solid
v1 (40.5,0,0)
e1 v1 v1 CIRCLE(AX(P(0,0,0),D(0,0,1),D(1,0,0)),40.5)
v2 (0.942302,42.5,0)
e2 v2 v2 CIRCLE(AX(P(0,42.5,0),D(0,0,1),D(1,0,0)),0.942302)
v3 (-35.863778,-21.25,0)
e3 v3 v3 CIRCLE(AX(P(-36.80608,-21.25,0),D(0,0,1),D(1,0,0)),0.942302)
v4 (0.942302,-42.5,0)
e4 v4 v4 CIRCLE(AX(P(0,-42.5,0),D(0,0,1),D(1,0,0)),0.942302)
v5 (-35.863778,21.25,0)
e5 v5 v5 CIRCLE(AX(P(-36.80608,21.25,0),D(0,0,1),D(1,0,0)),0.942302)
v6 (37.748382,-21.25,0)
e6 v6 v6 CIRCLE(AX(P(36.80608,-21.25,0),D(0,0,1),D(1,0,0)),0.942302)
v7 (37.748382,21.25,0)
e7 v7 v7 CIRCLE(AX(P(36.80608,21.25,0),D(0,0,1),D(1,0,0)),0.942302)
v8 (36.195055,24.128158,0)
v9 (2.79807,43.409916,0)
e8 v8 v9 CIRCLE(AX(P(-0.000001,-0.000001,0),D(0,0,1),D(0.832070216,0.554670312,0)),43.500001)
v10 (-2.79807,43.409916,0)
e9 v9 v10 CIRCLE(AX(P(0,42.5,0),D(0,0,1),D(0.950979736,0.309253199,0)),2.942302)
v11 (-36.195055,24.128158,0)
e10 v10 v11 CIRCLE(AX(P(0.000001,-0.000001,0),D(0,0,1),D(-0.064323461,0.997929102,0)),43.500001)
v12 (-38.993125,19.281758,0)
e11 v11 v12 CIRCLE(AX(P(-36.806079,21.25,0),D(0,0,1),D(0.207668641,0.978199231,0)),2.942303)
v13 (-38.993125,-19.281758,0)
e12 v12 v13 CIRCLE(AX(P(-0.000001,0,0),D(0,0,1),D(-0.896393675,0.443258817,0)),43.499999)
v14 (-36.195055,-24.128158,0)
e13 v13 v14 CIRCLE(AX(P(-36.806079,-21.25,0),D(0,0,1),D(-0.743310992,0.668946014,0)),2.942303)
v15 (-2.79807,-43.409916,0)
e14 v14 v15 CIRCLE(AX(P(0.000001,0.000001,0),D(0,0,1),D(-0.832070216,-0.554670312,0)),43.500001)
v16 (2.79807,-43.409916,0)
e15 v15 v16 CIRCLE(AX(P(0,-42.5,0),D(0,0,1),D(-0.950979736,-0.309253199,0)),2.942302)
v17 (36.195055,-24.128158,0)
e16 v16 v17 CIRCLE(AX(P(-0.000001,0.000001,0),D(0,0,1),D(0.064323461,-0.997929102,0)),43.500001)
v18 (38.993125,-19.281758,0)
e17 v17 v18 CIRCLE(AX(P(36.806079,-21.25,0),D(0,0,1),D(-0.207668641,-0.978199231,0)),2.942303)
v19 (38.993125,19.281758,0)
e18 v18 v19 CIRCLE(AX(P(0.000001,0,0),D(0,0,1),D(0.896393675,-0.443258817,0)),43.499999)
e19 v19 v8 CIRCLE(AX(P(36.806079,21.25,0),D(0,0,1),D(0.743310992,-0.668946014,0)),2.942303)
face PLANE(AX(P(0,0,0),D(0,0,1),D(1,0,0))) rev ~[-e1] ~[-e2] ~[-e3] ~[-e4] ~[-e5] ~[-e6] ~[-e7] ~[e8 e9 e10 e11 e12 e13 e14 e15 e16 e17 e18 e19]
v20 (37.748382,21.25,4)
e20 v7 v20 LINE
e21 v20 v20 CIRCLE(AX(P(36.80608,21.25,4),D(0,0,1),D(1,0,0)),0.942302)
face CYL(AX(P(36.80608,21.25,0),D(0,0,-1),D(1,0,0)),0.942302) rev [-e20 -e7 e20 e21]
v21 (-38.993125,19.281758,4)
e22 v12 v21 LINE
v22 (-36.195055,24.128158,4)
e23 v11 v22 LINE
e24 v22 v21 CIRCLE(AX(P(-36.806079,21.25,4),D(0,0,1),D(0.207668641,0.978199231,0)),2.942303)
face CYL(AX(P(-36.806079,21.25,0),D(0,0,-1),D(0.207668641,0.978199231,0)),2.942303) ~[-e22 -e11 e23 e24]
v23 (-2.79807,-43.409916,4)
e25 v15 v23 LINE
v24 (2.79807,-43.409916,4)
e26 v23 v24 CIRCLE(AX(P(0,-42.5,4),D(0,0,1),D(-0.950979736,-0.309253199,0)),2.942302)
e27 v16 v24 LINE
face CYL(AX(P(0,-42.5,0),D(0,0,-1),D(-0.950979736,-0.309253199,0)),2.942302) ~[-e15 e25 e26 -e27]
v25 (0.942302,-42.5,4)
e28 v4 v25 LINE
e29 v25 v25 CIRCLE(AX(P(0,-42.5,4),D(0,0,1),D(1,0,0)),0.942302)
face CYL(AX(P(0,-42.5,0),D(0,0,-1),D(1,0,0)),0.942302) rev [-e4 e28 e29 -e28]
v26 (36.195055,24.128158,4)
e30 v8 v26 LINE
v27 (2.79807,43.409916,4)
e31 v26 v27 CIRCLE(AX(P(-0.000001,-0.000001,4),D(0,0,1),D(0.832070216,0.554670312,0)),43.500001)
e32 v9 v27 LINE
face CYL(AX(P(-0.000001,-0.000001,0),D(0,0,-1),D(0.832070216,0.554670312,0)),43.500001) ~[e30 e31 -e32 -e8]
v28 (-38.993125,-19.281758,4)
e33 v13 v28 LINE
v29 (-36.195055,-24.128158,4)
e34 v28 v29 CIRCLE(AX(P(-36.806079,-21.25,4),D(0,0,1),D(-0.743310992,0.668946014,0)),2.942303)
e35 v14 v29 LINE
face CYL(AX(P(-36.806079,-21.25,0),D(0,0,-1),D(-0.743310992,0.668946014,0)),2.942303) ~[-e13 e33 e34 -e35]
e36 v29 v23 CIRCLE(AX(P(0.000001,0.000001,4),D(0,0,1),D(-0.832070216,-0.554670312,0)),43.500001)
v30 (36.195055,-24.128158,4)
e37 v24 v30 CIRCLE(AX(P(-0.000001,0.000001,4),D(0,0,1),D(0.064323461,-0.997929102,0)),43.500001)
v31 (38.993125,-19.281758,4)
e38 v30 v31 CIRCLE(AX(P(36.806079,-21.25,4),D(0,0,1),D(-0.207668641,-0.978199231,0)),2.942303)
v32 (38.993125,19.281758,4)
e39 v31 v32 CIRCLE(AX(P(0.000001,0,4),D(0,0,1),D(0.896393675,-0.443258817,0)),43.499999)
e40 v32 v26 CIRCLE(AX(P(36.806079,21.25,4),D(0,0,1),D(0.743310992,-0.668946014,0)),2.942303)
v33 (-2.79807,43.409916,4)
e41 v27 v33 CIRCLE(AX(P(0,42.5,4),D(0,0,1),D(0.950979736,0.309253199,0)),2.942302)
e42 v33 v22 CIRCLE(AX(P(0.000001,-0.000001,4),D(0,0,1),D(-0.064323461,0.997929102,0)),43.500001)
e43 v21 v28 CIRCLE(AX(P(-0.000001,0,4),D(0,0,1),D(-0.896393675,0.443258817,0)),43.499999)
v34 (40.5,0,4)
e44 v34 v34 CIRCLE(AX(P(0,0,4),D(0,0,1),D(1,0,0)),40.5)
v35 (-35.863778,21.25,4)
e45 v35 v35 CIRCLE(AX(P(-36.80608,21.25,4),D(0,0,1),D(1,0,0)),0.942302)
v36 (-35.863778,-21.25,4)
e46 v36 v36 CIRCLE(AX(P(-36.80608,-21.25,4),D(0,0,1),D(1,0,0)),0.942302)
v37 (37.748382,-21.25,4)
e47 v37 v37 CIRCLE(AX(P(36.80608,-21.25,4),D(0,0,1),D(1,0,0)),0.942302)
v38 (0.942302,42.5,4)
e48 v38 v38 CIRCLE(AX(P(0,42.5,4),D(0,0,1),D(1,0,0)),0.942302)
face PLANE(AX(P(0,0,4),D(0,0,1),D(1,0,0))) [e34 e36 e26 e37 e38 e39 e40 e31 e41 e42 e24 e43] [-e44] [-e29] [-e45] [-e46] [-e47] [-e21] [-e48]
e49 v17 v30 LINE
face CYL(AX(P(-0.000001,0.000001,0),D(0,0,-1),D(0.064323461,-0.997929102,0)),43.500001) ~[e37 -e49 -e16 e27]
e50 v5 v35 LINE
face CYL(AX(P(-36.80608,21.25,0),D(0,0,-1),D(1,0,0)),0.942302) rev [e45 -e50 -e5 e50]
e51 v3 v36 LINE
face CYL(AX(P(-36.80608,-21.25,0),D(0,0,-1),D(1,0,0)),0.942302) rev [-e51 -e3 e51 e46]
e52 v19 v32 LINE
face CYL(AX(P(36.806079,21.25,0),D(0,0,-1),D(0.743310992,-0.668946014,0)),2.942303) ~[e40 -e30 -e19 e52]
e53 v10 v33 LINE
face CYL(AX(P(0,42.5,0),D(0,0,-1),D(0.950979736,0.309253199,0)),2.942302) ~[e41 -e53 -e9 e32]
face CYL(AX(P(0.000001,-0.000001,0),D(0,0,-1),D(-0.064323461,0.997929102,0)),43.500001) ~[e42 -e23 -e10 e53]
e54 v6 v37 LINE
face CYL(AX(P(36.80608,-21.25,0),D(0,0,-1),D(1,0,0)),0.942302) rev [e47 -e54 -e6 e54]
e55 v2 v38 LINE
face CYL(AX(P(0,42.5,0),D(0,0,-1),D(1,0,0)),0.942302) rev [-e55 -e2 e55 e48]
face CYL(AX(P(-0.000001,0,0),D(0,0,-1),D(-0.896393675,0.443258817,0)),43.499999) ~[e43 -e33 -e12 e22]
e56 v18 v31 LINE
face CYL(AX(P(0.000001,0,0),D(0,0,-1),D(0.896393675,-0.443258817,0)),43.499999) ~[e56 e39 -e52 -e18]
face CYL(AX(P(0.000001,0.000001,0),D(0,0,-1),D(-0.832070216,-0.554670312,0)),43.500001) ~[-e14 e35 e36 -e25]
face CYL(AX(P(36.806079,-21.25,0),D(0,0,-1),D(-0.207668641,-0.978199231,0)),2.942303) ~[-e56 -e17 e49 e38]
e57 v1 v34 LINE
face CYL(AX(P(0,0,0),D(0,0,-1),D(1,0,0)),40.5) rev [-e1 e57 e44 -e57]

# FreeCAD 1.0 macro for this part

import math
import FreeCAD as App
import Part
import Sketcher
from FreeCAD import Vector

doc = App.newDocument("Part")
params = doc.addObject("Spreadsheet::Sheet", "Params")
for row, (alias, value) in enumerate([
    ("sketch1_diameter", "81 mm"),
    ("sketch1_radius", "43.500001 mm"),
    ("sketch1_radius2", "43.499999 mm"),
    ("pad1_length", "4 mm"),
], start=1):
    params.set(f"A{row}", alias)
    params.set(f"B{row}", "=" + value)
    params.setAlias(f"B{row}", alias)

body = doc.addObject("PartDesign::Body", "Body")

sketch1 = doc.addObject("Sketcher::SketchObject", "Sketch")
body.addObject(sketch1)
sketch1.AttachmentSupport = (doc.XY_Plane, [""])
sketch1.MapMode = "FlatFace"
sketch1.addGeometry([
    Part.ArcOfCircle(Part.Circle(Vector(0, 42.5, 0), Vector(0, 0, 1), 2.9), math.radians(18), math.radians(162)),
    Part.ArcOfCircle(Part.Circle(Vector(0, 0, 0), Vector(0, 0, 1), 43.5), math.radians(94), math.radians(146)),
    Part.ArcOfCircle(Part.Circle(Vector(-36.8, 21.2, 0), Vector(0, 0, 1), 2.9), math.radians(78), math.radians(222)),
    Part.ArcOfCircle(Part.Circle(Vector(0, 0, 0), Vector(0, 0, 1), 43.5), math.radians(154), math.radians(206)),
    Part.ArcOfCircle(Part.Circle(Vector(-36.8, -21.2, 0), Vector(0, 0, 1), 2.9), math.radians(138), math.radians(282)),
    Part.ArcOfCircle(Part.Circle(Vector(0, 0, 0), Vector(0, 0, 1), 43.5), math.radians(-146), math.radians(-94)),
    Part.ArcOfCircle(Part.Circle(Vector(0, -42.5, 0), Vector(0, 0, 1), 2.9), math.radians(-162), math.radians(-18)),
    Part.ArcOfCircle(Part.Circle(Vector(0, 0, 0), Vector(0, 0, 1), 43.5), math.radians(-86), math.radians(-34)),
    Part.ArcOfCircle(Part.Circle(Vector(36.8, -21.2, 0), Vector(0, 0, 1), 2.9), math.radians(-102), math.radians(42)),
    Part.ArcOfCircle(Part.Circle(Vector(0, 0, 0), Vector(0, 0, 1), 43.5), math.radians(-26), math.radians(26)),
    Part.ArcOfCircle(Part.Circle(Vector(36.8, 21.2, 0), Vector(0, 0, 1), 2.9), math.radians(-42), math.radians(102)),
    Part.ArcOfCircle(Part.Circle(Vector(0, 0, 0), Vector(0, 0, 1), 43.5), math.radians(34), math.radians(86)),
    Part.Circle(Vector(-36.8, -21.2, 0), Vector(0, 0, 1), 0.9),
    Part.Circle(Vector(0, -42.5, 0), Vector(0, 0, 1), 0.9),
    Part.Circle(Vector(36.8, -21.2, 0), Vector(0, 0, 1), 0.9),
    Part.Circle(Vector(-36.8, 21.2, 0), Vector(0, 0, 1), 0.9),
    Part.Circle(Vector(0, 0, 0), Vector(0, 0, 1), 40.5),
    Part.Circle(Vector(36.8, 21.2, 0), Vector(0, 0, 1), 0.9),
    Part.Circle(Vector(0, 42.5, 0), Vector(0, 0, 1), 0.9),
], False)
sketch1.addConstraint([
    Sketcher.Constraint("Coincident", 0, 2, 1, 1),
    Sketcher.Constraint("Coincident", 1, 2, 2, 1),
    Sketcher.Constraint("Coincident", 2, 2, 3, 1),
    Sketcher.Constraint("Coincident", 3, 2, 4, 1),
    Sketcher.Constraint("Coincident", 4, 2, 5, 1),
    Sketcher.Constraint("Coincident", 5, 2, 6, 1),
    Sketcher.Constraint("Coincident", 6, 2, 7, 1),
    Sketcher.Constraint("Coincident", 7, 2, 8, 1),
    Sketcher.Constraint("Coincident", 8, 2, 9, 1),
    Sketcher.Constraint("Coincident", 9, 2, 10, 1),
    Sketcher.Constraint("Coincident", 10, 2, 11, 1),
    Sketcher.Constraint("Coincident", 11, 2, 0, 1),
    Sketcher.Constraint("Coincident", 1, 3, -1, 1),
    Sketcher.Constraint("Coincident", 3, 3, -1, 1),
    Sketcher.Constraint("Coincident", 5, 3, -1, 1),
    Sketcher.Constraint("Coincident", 7, 3, -1, 1),
    Sketcher.Constraint("Coincident", 9, 3, -1, 1),
    Sketcher.Constraint("Coincident", 11, 3, -1, 1),
    Sketcher.Constraint("Coincident", 16, 3, -1, 1),
    Sketcher.Constraint("Coincident", 12, 3, 4, 3),
    Sketcher.Constraint("Coincident", 13, 3, 6, 3),
    Sketcher.Constraint("Coincident", 14, 3, 8, 3),
    Sketcher.Constraint("Coincident", 15, 3, 2, 3),
    Sketcher.Constraint("Coincident", 17, 3, 10, 3),
    Sketcher.Constraint("Coincident", 18, 3, 0, 3),
    Sketcher.Constraint("Equal", 0, 2),
    Sketcher.Constraint("Equal", 2, 4),
    Sketcher.Constraint("Equal", 1, 5),
    Sketcher.Constraint("Equal", 4, 6),
    Sketcher.Constraint("Equal", 5, 7),
    Sketcher.Constraint("Equal", 6, 8),
    Sketcher.Constraint("Equal", 3, 9),
    Sketcher.Constraint("Equal", 8, 10),
    Sketcher.Constraint("Equal", 7, 11),
    Sketcher.Constraint("Equal", 12, 13),
    Sketcher.Constraint("Equal", 13, 14),
    Sketcher.Constraint("Equal", 14, 15),
    Sketcher.Constraint("Equal", 15, 17),
    Sketcher.Constraint("Equal", 17, 18),
    Sketcher.Constraint("Symmetric", 0, 3, 6, 3, -1, 1),
    Sketcher.Constraint("Symmetric", 2, 3, 8, 3, -1, 1),
    Sketcher.Constraint("Symmetric", 4, 3, 10, 3, -1, 1),
    Sketcher.Constraint("Symmetric", 4, 3, 8, 3, -2),
    Sketcher.Constraint("PointOnObject", 0, 3, -2),
    Sketcher.Constraint("Diameter", 16, 81.0),
    Sketcher.Constraint("Radius", 1, 43.500001),
    Sketcher.Constraint("Radius", 3, 43.499999),
    Sketcher.Constraint("DistanceY", -1, 1, 0, 3, 42.5),
    Sketcher.Constraint("DistanceY", 4, 3, 2, 3, 42.499999),
    Sketcher.Constraint("Diameter", 12, 1.884604),
    Sketcher.Constraint("Radius", 0, 2.942302),
    Sketcher.Constraint("DistanceY", 2, 2, 1, 2, 4.8464),
])
sketch1.setExpression("Constraints[44]", "Params.sketch1_diameter")
sketch1.setExpression("Constraints[45]", "Params.sketch1_radius")
sketch1.setExpression("Constraints[46]", "Params.sketch1_radius2")
pad1 = doc.addObject("PartDesign::Pad", "Pad")
body.addObject(pad1)
pad1.Profile = sketch1
pad1.setExpression("Length", "Params.pad1_length")

doc.recompute()
